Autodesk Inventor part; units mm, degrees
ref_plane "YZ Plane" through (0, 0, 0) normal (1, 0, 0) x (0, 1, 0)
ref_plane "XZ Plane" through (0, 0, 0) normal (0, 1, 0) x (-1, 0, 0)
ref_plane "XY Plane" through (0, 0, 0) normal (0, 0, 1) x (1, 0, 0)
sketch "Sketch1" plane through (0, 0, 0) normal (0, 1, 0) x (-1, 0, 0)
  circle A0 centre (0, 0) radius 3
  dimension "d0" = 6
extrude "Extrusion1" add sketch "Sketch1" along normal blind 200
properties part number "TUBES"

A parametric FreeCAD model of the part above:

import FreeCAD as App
import Part
import Sketcher
Q = App.Units.Quantity

doc = App.newDocument("Part")
params = doc.addObject("Spreadsheet::Sheet", "Params")
for row, (alias, value) in enumerate([
    ("sketch1_diameter", "6 mm"),
    ("pad1_length", "200 mm"),
], start=1):
    params.set(f"A{row}", alias)
    params.set(f"B{row}", "=" + value)
    params.setAlias(f"B{row}", alias)

body = doc.addObject("PartDesign::Body", "Body")

# Sketch on XZ plane
sketch1 = doc.addObject("Sketcher::SketchObject", "Sketch")
body.addObject(sketch1)
sketch1.AttachmentSupport = (doc.XZ_Plane, [""])
sketch1.MapMode = "FlatFace"
sketch1.addGeometry(Part.Circle(App.Vector(0, 0, 0), App.Vector(0, 0, 1), 3), False)
sketch1.addConstraint([
    Sketcher.Constraint("Coincident", 0, 3, -1, 1),
    Sketcher.Constraint("Diameter", 0, Q("6 mm")),
])
sketch1.setExpression("Constraints[1]", "Params.sketch1_diameter")
pad1 = doc.addObject("PartDesign::Pad", "Pad")
body.addObject(pad1)
pad1.Profile = sketch1
pad1.setExpression("Length", "Params.pad1_length")
pad1.Reversed = True

doc.recompute()
